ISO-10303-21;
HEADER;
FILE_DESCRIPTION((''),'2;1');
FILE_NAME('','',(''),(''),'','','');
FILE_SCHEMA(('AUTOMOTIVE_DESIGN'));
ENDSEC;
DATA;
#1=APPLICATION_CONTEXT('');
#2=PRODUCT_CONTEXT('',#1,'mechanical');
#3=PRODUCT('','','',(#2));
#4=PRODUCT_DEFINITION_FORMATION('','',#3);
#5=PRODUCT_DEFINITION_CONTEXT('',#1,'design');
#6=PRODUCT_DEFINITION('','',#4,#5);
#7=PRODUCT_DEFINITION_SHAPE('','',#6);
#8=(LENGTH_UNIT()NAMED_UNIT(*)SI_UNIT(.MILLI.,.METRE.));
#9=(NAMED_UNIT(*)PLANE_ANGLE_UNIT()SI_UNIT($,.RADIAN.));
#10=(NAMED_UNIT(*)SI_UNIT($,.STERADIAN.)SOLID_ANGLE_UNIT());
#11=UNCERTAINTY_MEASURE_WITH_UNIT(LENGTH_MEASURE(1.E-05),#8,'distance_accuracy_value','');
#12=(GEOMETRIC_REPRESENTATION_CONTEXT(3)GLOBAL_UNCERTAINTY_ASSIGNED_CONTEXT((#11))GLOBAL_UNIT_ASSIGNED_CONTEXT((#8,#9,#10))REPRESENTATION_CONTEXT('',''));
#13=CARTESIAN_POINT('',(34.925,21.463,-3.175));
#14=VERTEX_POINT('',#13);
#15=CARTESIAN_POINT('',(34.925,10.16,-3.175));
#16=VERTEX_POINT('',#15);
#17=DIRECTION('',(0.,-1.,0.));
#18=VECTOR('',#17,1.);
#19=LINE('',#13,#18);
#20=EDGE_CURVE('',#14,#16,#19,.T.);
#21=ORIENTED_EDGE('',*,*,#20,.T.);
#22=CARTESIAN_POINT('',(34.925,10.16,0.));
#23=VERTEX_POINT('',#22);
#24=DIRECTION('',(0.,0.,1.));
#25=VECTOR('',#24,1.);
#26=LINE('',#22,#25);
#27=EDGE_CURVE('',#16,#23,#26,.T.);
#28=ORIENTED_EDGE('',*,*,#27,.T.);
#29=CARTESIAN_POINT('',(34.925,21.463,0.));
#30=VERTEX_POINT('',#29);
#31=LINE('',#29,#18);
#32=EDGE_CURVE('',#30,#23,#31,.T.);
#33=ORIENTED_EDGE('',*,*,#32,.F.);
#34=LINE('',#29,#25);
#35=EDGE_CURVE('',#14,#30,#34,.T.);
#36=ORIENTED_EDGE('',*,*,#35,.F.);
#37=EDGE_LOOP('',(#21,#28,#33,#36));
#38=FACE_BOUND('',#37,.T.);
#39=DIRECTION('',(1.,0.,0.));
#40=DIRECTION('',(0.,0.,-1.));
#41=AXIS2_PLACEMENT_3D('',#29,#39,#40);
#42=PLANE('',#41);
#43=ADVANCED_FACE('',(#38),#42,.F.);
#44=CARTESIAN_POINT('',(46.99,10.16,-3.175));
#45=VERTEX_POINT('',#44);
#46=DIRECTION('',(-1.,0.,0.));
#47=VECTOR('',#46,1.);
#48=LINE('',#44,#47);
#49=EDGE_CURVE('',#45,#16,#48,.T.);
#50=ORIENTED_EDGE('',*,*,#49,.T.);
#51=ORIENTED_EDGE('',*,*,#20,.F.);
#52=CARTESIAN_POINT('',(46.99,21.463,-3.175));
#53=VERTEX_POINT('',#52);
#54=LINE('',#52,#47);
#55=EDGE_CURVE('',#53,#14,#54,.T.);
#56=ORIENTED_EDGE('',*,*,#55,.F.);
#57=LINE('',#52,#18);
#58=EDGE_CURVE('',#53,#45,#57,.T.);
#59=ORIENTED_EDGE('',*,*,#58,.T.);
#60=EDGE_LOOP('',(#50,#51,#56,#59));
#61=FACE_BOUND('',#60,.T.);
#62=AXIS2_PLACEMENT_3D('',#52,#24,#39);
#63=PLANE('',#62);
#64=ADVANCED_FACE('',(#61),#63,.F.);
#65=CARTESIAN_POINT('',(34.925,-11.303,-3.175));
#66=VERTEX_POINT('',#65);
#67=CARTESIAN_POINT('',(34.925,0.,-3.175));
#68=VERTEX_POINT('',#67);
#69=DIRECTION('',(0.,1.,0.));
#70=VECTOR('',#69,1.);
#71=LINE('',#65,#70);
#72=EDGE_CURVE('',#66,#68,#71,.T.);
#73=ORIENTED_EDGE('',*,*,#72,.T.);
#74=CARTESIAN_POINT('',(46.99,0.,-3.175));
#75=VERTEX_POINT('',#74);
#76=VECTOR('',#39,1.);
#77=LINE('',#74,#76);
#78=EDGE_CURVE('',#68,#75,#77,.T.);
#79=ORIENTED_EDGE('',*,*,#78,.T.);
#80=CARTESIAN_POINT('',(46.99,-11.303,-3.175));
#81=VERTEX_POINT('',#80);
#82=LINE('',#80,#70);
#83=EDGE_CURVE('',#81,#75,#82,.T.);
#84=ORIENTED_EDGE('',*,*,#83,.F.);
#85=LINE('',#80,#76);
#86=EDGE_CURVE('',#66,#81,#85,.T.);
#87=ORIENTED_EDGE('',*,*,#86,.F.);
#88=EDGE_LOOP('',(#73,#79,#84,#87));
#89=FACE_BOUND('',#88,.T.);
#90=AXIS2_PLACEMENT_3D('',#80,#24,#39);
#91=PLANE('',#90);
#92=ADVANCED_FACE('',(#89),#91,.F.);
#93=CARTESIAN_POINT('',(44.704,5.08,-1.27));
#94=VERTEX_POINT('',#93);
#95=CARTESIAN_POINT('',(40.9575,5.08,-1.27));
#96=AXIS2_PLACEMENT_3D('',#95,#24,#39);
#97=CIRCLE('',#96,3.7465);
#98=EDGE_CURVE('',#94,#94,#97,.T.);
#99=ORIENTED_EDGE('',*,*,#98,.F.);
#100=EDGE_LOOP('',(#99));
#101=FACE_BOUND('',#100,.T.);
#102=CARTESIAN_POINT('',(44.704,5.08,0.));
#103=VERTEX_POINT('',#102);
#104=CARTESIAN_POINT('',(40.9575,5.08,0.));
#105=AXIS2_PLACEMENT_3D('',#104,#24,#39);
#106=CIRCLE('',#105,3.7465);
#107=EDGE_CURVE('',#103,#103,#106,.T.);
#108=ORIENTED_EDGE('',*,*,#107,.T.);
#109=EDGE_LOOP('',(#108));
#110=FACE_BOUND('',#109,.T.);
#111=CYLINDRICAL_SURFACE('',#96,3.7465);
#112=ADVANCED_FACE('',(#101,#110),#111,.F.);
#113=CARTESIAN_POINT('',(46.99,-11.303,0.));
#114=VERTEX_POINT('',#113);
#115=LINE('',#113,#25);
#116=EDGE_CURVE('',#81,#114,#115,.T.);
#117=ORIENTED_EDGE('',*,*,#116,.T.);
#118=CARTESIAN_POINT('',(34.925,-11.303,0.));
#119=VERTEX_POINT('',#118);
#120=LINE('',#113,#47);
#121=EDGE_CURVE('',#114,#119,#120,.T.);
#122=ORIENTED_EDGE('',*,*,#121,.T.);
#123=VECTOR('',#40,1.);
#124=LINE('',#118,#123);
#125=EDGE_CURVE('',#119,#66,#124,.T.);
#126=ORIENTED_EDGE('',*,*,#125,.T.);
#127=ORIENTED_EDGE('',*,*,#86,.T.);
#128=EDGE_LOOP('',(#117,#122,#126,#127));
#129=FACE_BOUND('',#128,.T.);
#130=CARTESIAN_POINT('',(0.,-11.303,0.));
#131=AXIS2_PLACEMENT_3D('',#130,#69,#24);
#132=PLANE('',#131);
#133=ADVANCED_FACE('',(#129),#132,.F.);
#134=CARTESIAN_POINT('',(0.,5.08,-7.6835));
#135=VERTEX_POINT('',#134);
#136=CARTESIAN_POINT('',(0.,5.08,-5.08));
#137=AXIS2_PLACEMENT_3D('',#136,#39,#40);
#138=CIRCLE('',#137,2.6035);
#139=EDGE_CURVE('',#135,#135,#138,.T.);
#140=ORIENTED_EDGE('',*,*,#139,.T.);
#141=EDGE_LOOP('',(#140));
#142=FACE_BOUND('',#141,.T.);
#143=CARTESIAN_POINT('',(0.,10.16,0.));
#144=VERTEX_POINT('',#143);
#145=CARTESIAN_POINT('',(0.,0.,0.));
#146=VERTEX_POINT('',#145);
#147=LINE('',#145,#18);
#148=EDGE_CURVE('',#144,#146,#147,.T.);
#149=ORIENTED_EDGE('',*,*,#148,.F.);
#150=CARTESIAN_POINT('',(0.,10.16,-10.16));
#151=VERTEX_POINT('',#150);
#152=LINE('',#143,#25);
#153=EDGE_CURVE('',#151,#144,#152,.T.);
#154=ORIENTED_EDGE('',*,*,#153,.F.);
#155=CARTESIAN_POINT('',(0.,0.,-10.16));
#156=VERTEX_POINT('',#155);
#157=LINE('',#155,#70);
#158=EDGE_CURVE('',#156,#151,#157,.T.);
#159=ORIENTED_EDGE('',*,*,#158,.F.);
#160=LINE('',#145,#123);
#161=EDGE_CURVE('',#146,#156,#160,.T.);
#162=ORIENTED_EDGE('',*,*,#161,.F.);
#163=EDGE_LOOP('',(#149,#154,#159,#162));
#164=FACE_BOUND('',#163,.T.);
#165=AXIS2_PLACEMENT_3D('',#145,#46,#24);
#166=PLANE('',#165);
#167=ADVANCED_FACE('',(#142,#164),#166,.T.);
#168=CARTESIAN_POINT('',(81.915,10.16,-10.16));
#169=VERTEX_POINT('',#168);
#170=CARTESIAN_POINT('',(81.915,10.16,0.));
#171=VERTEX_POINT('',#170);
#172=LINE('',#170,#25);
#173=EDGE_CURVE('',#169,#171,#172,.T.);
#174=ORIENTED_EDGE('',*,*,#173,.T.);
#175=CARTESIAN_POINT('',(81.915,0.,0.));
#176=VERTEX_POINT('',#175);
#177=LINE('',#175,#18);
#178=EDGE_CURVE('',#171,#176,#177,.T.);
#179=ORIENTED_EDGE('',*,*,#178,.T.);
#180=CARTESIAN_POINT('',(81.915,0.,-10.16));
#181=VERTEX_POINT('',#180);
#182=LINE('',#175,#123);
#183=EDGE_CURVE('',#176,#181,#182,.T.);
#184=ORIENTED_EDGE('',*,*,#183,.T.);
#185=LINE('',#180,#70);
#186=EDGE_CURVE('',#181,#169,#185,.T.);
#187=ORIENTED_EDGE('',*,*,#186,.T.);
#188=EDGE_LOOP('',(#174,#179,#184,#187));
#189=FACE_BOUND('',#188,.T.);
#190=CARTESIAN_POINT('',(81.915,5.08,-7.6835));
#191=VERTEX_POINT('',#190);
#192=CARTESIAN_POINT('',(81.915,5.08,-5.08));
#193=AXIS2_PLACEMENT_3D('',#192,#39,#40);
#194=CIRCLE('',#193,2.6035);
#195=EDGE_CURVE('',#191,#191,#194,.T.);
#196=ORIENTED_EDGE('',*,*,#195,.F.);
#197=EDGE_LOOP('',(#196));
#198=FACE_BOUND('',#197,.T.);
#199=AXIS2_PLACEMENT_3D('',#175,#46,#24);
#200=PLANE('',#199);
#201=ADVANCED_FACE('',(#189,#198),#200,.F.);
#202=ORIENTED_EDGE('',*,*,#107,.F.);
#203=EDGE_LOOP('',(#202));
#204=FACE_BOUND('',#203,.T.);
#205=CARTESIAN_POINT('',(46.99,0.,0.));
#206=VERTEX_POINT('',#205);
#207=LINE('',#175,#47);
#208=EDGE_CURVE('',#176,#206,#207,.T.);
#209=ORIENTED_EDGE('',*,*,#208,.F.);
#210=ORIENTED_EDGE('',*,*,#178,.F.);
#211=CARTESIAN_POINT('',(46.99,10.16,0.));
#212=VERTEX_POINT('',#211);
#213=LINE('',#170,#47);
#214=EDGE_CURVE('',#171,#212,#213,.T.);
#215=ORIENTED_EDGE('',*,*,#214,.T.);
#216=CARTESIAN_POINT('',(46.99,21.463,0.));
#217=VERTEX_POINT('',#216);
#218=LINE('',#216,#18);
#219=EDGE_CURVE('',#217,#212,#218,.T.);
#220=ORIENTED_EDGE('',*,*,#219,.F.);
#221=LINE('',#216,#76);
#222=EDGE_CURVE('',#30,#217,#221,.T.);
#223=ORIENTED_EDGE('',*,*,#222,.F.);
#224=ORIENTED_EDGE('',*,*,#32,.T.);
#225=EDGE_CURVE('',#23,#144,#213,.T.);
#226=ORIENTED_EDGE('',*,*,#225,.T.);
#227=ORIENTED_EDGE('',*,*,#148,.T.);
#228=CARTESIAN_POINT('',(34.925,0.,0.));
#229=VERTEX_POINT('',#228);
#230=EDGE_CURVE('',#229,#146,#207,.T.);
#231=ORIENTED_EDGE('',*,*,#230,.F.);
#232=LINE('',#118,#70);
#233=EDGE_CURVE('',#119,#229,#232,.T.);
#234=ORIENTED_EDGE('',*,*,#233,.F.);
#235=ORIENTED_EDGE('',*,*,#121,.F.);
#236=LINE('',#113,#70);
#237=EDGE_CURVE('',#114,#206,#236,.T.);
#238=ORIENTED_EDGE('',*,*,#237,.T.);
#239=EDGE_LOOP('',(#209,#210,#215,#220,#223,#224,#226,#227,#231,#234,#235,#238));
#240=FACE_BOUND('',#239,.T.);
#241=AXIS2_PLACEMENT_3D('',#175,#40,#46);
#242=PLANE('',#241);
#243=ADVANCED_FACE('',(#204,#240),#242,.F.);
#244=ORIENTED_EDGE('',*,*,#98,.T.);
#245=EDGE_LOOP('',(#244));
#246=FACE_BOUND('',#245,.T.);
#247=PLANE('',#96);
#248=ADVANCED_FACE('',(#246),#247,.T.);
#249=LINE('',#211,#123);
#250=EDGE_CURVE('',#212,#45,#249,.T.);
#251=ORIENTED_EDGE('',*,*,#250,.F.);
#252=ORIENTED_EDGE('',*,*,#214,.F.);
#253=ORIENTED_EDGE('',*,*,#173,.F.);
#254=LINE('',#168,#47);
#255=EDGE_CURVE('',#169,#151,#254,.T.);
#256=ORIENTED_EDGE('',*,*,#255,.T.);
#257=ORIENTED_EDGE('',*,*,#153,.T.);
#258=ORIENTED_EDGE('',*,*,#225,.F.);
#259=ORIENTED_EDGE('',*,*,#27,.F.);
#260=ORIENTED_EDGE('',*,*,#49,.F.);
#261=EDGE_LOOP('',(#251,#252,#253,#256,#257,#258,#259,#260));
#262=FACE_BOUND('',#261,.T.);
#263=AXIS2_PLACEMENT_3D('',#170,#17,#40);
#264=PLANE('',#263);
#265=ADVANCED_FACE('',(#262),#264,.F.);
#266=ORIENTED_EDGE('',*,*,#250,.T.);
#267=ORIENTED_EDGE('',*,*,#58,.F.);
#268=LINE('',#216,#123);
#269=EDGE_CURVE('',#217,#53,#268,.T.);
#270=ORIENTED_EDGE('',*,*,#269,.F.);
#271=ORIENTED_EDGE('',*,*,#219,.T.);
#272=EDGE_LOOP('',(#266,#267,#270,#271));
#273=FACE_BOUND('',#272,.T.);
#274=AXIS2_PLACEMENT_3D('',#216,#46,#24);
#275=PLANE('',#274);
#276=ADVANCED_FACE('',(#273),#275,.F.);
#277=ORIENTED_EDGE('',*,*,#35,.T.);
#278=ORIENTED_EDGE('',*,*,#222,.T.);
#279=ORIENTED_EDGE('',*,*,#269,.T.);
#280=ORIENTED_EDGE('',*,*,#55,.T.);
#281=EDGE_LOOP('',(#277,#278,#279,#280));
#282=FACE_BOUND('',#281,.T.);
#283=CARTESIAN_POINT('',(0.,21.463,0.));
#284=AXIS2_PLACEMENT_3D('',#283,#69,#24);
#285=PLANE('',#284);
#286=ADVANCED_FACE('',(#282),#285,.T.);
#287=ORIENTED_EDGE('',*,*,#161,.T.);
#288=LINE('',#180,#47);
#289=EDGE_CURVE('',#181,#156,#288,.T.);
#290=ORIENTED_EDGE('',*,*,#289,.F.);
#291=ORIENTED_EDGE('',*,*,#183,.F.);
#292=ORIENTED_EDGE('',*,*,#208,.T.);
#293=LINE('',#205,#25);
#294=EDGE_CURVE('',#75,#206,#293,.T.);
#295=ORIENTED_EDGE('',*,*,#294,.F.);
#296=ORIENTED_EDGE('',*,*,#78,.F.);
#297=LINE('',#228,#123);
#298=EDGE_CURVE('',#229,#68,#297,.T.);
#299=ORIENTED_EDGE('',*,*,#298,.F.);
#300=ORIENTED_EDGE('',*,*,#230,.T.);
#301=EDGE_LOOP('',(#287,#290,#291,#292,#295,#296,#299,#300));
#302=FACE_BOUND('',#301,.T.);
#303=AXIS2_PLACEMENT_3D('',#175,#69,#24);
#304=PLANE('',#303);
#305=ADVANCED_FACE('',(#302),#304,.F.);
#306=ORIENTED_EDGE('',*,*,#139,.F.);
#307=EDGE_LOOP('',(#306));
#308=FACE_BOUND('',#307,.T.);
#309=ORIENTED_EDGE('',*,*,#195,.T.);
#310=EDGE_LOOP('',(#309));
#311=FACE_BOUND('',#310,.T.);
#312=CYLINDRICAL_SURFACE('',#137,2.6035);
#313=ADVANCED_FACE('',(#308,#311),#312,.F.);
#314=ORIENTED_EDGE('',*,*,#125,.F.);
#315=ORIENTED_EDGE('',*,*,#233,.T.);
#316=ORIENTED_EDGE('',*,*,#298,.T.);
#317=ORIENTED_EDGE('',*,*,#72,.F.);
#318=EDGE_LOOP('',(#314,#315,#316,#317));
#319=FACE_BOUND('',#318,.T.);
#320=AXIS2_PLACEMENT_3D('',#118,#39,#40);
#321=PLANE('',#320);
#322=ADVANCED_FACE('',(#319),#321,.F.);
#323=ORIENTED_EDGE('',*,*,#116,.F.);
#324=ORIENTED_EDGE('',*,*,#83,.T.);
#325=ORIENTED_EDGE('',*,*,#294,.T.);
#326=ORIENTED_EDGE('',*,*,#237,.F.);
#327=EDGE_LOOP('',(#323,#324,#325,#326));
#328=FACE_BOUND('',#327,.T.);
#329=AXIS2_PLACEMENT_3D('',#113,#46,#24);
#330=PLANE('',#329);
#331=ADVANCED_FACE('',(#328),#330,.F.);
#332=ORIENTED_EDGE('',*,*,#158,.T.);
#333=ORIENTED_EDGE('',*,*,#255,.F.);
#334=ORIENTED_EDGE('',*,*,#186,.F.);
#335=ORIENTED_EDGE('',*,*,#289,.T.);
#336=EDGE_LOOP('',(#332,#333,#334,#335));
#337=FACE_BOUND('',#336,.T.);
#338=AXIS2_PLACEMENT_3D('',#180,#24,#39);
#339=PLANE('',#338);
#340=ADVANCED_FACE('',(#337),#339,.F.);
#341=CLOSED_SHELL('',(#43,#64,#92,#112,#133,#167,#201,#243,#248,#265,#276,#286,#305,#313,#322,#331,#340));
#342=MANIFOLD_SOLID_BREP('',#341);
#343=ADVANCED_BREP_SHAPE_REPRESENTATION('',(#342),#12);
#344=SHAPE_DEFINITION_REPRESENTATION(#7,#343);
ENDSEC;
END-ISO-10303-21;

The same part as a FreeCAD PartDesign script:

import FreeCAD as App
import Part
import Sketcher

V = App.Vector
Q = App.Units.Quantity


def add_polygon(sketch, points):
    """Adds a closed chain of lines whose ends are joined by coincident constraints."""
    first, n = sketch.GeometryCount, len(points)
    for a, b in zip(points, points[1:] + points[:1]):
        sketch.addGeometry(Part.LineSegment(App.Vector(*a, 0), App.Vector(*b, 0)), False)
    for i in range(n):
        sketch.addConstraint(Sketcher.Constraint("Coincident", first + i, 2, first + (i + 1) % n, 1))

doc = App.newDocument("Part")
params = doc.addObject("Spreadsheet::Sheet", "Params")
for row, (alias, value) in enumerate([
    ("sketch1_width", "0.4 in"),
    ("pad1_length", "3.225 in"),
    ("sketch2_diameter", "0.205 in"),
    ("sketch3_diameter", "0.295 in"),
    ("pocket2_length", "0.05 in"),
    ("sketch4_width", "0.475 in"),
    ("sketch4_height", "0.125 in"),
    ("pad2_length", "0.445 in"),
    ("sketch5_width", "0.475 in"),
    ("sketch5_height", "0.125 in"),
    ("pad3_length", "0.445 in"),
], start=1):
    params.set(f"A{row}", alias)
    params.set(f"B{row}", "=" + value)
    params.setAlias(f"B{row}", alias)

body = doc.addObject("PartDesign::Body", "Body")

sketch1 = body.newObject("Sketcher::SketchObject", "Sketch")
sketch1.AttachmentSupport = (doc.getObject("YZ_Plane"), [""])
sketch1.MapMode = "FlatFace"
add_polygon(sketch1, [(10, 0), (0, 0), (0, -10), (10, -10)])
sketch1.addConstraint(Sketcher.Constraint("Horizontal", 0))
sketch1.addConstraint(Sketcher.Constraint("Vertical", 1))
sketch1.addConstraint(Sketcher.Constraint("Horizontal", 2))
sketch1.addConstraint(Sketcher.Constraint("Vertical", 3))
sketch1.addConstraint(Sketcher.Constraint("Coincident", 0, 2, -1, 1))
sketch1.addConstraint(Sketcher.Constraint("Equal", 2, 1))
sketch1.addConstraint(Sketcher.Constraint("DistanceX", 0, 2, 0, 1, Q("0.4 in")))
sketch1.setExpression("Constraints[10]", "Params.sketch1_width")
pad1 = body.newObject("PartDesign::Pad", "Pad")
pad1.Profile = sketch1
pad1.setExpression("Length", "Params.pad1_length")

sketch2 = body.newObject("Sketcher::SketchObject", "Sketch001")
sketch2.AttachmentSupport = (doc.getObject("YZ_Plane"), [""])
sketch2.MapMode = "FlatFace"
sketch2.AttachmentOffset = App.Placement(V(0, 0, 3.225 * 25.4), App.Rotation())
sketch2.addGeometry(Part.Circle(V(5.1, -5.1, 0), V(0, 0, 1), 2.6), False)
sketch2.addConstraint(Sketcher.Constraint("Diameter", 0, Q("0.205 in")))
sketch2.addConstraint(Sketcher.Constraint("DistanceX", -1, 1, 0, 3, Q("0.2 in")))
sketch2.addConstraint(Sketcher.Constraint("DistanceY", 0, 3, -1, 1, Q("0.2 in")))
sketch2.setExpression("Constraints[0]", "Params.sketch2_diameter")
pocket1 = body.newObject("PartDesign::Pocket", "Pocket")
pocket1.Profile = sketch2
pocket1.Type = "ThroughAll"

sketch3 = body.newObject("Sketcher::SketchObject", "Sketch002")
sketch3.AttachmentSupport = (doc.getObject("XY_Plane"), [""])
sketch3.MapMode = "FlatFace"
sketch3.addGeometry(Part.Circle(V(41, 5.1, 0), V(0, 0, 1), 3.7), False)
sketch3.addConstraint(Sketcher.Constraint("Diameter", 0, Q("0.295 in")))
sketch3.addConstraint(Sketcher.Constraint("DistanceY", -1, 1, 0, 3, Q("0.2 in")))
sketch3.addConstraint(Sketcher.Constraint("DistanceX", -1, 1, 0, 3, Q("1.6125 in")))
sketch3.setExpression("Constraints[0]", "Params.sketch3_diameter")
pocket2 = body.newObject("PartDesign::Pocket", "Pocket001")
pocket2.Profile = sketch3
pocket2.setExpression("Length", "Params.pocket2_length")

sketch4 = body.newObject("Sketcher::SketchObject", "Sketch003")
sketch4.AttachmentSupport = (doc.getObject("XZ_Plane"), [""])
sketch4.MapMode = "FlatFace"
add_polygon(sketch4, [(34.9, 0), (34.9, -3.2), (47, -3.2), (47, 0)])
sketch4.addConstraint(Sketcher.Constraint("Vertical", 0))
sketch4.addConstraint(Sketcher.Constraint("Horizontal", 1))
sketch4.addConstraint(Sketcher.Constraint("Vertical", 2))
sketch4.addConstraint(Sketcher.Constraint("Horizontal", 3))
sketch4.addConstraint(Sketcher.Constraint("PointOnObject", 2, 2, -1))
sketch4.addConstraint(Sketcher.Constraint("DistanceX", 1, 1, 1, 2, Q("0.475 in")))
sketch4.addConstraint(Sketcher.Constraint("DistanceY", 0, 2, 0, 1, Q("0.125 in")))
sketch4.addConstraint(Sketcher.Constraint("DistanceX", -1, 1, 1, 2, Q("1.85 in")))
sketch4.setExpression("Constraints[9]", "Params.sketch4_width")
sketch4.setExpression("Constraints[10]", "Params.sketch4_height")
pad2 = body.newObject("PartDesign::Pad", "Pad001")
pad2.Profile = sketch4
pad2.setExpression("Length", "Params.pad2_length")

sketch5 = body.newObject("Sketcher::SketchObject", "Sketch004")
sketch5.AttachmentSupport = (doc.getObject("XZ_Plane"), [""])
sketch5.MapMode = "FlatFace"
sketch5.AttachmentOffset = App.Placement(V(0, 0, -0.4 * 25.4), App.Rotation())
add_polygon(sketch5, [(34.9, -3.2), (34.9, 0), (47, 0), (47, -3.2)])
sketch5.addConstraint(Sketcher.Constraint("Vertical", 0))
sketch5.addConstraint(Sketcher.Constraint("Horizontal", 1))
sketch5.addConstraint(Sketcher.Constraint("Vertical", 2))
sketch5.addConstraint(Sketcher.Constraint("Horizontal", 3))
sketch5.addConstraint(Sketcher.Constraint("PointOnObject", 0, 2, -1))
sketch5.addConstraint(Sketcher.Constraint("DistanceX", 1, 1, 1, 2, Q("0.475 in")))
sketch5.addConstraint(Sketcher.Constraint("DistanceY", 0, 1, 0, 2, Q("0.125 in")))
sketch5.addConstraint(Sketcher.Constraint("DistanceX", -1, 1, 1, 2, Q("1.85 in")))
sketch5.setExpression("Constraints[9]", "Params.sketch5_width")
sketch5.setExpression("Constraints[10]", "Params.sketch5_height")
pad3 = body.newObject("PartDesign::Pad", "Pad002")
pad3.Profile = sketch5
pad3.setExpression("Length", "Params.pad3_length")
pad3.Reversed = True

doc.recompute()
